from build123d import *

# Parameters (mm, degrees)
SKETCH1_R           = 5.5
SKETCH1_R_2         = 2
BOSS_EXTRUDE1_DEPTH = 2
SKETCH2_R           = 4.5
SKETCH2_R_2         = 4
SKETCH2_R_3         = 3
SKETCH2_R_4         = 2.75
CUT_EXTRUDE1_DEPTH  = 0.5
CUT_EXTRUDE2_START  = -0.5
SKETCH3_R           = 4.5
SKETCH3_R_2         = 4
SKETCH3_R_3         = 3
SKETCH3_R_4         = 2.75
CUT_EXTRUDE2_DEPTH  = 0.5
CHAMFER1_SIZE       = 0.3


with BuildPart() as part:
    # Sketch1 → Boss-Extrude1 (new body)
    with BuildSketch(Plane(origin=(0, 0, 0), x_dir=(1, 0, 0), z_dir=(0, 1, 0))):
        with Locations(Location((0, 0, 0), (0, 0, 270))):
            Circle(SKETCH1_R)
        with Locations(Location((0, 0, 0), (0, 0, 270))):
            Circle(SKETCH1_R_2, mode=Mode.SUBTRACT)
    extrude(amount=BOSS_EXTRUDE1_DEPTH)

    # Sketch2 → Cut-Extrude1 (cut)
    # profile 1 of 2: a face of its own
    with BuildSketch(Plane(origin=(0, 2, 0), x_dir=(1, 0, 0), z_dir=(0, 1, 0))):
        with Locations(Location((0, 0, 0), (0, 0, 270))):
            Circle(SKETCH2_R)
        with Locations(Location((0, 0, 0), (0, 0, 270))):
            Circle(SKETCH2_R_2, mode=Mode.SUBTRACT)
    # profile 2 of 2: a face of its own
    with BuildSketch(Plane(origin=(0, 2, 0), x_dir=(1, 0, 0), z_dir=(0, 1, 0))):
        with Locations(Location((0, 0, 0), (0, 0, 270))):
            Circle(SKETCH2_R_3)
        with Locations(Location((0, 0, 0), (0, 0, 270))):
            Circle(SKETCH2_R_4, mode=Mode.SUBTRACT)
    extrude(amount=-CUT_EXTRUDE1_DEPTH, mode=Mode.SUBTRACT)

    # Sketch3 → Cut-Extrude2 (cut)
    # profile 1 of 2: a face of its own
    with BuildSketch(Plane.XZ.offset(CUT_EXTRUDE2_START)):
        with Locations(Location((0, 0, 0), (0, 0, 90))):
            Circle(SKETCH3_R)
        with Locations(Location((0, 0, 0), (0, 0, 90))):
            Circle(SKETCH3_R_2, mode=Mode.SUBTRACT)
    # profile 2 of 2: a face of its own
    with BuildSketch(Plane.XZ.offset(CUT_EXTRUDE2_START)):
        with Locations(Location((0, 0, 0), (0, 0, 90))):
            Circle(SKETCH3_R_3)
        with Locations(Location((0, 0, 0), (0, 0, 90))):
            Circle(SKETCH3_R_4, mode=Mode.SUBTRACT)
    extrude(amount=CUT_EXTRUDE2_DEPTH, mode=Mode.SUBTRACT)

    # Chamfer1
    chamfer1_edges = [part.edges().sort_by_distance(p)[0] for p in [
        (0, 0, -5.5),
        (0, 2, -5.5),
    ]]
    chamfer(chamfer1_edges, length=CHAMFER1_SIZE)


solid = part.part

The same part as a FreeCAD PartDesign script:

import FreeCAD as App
import Part
import Sketcher
from FreeCAD import Vector


def edges_at(feature, points):
    """Names of the edges that pass closest to the given points."""
    edges = feature.Shape.Edges
    near = lambda p: min(range(len(edges)), key=lambda i: edges[i].distToShape(Part.Vertex(*p))[0])
    return sorted({f"Edge{near(p) + 1}" for p in points})

doc = App.newDocument("Part")
body = doc.addObject("PartDesign::Body", "Body")

# Sketch on XZ plane
sketch1 = body.newObject("Sketcher::SketchObject", "Sketch")
sketch1.AttachmentSupport = (doc.getObject("XZ_Plane"), [""])
sketch1.MapMode = "FlatFace"
sketch1.addGeometry([
    Part.Circle(Vector(0, 0, 0), Vector(0, 0, 1), 5.5),
    Part.Circle(Vector(0, 0, 0), Vector(0, 0, 1), 2),
], False)
sketch1.addConstraint([
    Sketcher.Constraint("Coincident", 0, 3, -1, 1),
    Sketcher.Constraint("Coincident", 1, 3, -1, 1),
    Sketcher.Constraint("Diameter", 0, 11.0),
    Sketcher.Constraint("Diameter", 1, 4.0),
])
pad1 = body.newObject("PartDesign::Pad", "Pad")
pad1.Profile = sketch1
pad1.Length = 2
pad1.Reversed = True

# Sketch on XZ plane
sketch2 = body.newObject("Sketcher::SketchObject", "Sketch001")
sketch2.AttachmentSupport = (doc.getObject("XZ_Plane"), [""])
sketch2.MapMode = "FlatFace"
sketch2.AttachmentOffset = App.Placement(Vector(0, 0, -2), App.Rotation())
sketch2.addGeometry([
    Part.Circle(Vector(0, 0, 0), Vector(0, 0, 1), 4.5),
    Part.Circle(Vector(0, 0, 0), Vector(0, 0, 1), 4),
    Part.Circle(Vector(0, 0, 0), Vector(0, 0, 1), 3),
    Part.Circle(Vector(0, 0, 0), Vector(0, 0, 1), 2.75),
], False)
sketch2.addConstraint([
    Sketcher.Constraint("Coincident", 0, 3, -1, 1),
    Sketcher.Constraint("Coincident", 1, 3, -1, 1),
    Sketcher.Constraint("Coincident", 2, 3, -1, 1),
    Sketcher.Constraint("Coincident", 3, 3, -1, 1),
    Sketcher.Constraint("Diameter", 0, 9.0),
    Sketcher.Constraint("Diameter", 1, 8.0),
    Sketcher.Constraint("Diameter", 2, 6.0),
    Sketcher.Constraint("Diameter", 3, 5.5),
])
pocket1 = body.newObject("PartDesign::Pocket", "Pocket")
pocket1.Profile = sketch2
pocket1.Length = 0.5
pocket1.Reversed = True

# Sketch on XZ plane
sketch3 = body.newObject("Sketcher::SketchObject", "Sketch002")
sketch3.AttachmentSupport = (doc.getObject("XZ_Plane"), [""])
sketch3.MapMode = "FlatFace"
sketch3.AttachmentOffset = App.Placement(Vector(0, 0, -0.5), App.Rotation())
sketch3.addGeometry([
    Part.Circle(Vector(0, 0, 0), Vector(0, 0, 1), 4.5),
    Part.Circle(Vector(0, 0, 0), Vector(0, 0, 1), 4),
    Part.Circle(Vector(0, 0, 0), Vector(0, 0, 1), 3),
    Part.Circle(Vector(0, 0, 0), Vector(0, 0, 1), 2.75),
], False)
sketch3.addConstraint([
    Sketcher.Constraint("Coincident", 0, 3, -1, 1),
    Sketcher.Constraint("Coincident", 1, 3, -1, 1),
    Sketcher.Constraint("Coincident", 2, 3, -1, 1),
    Sketcher.Constraint("Coincident", 3, 3, -1, 1),
    Sketcher.Constraint("Diameter", 0, 9.0),
    Sketcher.Constraint("Diameter", 1, 8.0),
    Sketcher.Constraint("Diameter", 2, 6.0),
    Sketcher.Constraint("Diameter", 3, 5.5),
])
pocket2 = body.newObject("PartDesign::Pocket", "Pocket001")
pocket2.Profile = sketch3
pocket2.Length = 0.5
pocket2.Reversed = True
doc.recompute()

chamfer = body.newObject("PartDesign::Chamfer", "Chamfer")
chamfer.Base = (pocket2, edges_at(pocket2, [(0, 0, -5.5), (0, 2, -5.5)]))
chamfer.Size = 0.3

doc.recompute()
